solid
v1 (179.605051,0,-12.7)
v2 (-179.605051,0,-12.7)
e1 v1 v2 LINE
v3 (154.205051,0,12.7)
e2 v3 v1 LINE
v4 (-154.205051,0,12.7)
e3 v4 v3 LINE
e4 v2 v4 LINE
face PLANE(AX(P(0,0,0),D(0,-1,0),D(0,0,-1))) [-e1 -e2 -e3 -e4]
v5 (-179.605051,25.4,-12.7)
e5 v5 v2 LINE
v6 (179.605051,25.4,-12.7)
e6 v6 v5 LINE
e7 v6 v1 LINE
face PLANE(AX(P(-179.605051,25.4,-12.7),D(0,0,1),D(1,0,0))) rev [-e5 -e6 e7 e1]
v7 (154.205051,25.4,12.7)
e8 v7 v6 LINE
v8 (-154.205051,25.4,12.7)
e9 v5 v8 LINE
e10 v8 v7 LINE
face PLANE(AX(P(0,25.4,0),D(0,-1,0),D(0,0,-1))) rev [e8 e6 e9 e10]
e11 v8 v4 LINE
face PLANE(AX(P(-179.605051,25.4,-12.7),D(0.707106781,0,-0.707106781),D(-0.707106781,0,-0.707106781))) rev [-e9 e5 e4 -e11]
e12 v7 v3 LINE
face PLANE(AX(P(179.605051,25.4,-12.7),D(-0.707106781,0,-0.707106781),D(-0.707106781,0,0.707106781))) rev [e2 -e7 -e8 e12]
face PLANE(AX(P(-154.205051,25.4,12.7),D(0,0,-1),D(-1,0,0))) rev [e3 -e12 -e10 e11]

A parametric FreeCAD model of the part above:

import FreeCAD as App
import Part
import Sketcher
from FreeCAD import Vector
Q = App.Units.Quantity

doc = App.newDocument("Part")
body = doc.addObject("PartDesign::Body", "Body")

sketch1 = body.newObject("Sketcher::SketchObject", "Sketch")
sketch1.AttachmentSupport = (doc.getObject("XZ_Plane"), [""])
sketch1.MapMode = "FlatFace"
sketch1.addGeometry(Part.LineSegment(Vector(154, 13, 0), Vector(180, -13, 0)), False)
sketch1.addGeometry(Part.LineSegment(Vector(180, -13, 0), Vector(-180, -13, 0)), False)
sketch1.addGeometry(Part.LineSegment(Vector(-180, -13, 0), Vector(-154, 13, 0)), False)
sketch1.addGeometry(Part.LineSegment(Vector(-154, 13, 0), Vector(154, 13, 0)), False)
sketch1.addConstraint(Sketcher.Constraint("Coincident", 0, 2, 1, 1))
sketch1.addConstraint(Sketcher.Constraint("Coincident", 1, 2, 2, 1))
sketch1.addConstraint(Sketcher.Constraint("Coincident", 2, 2, 3, 1))
sketch1.addConstraint(Sketcher.Constraint("Coincident", 3, 2, 0, 1))
sketch1.addConstraint(Sketcher.Constraint("Horizontal", 1))
sketch1.addConstraint(Sketcher.Constraint("Horizontal", 3))
sketch1.addConstraint(Sketcher.Constraint("Perpendicular", 0, 2))
sketch1.addConstraint(Sketcher.Constraint("Equal", 0, 2))
sketch1.addConstraint(Sketcher.Constraint("DistanceX", 1, 2, 2, 2, Q("1 in")))
sketch1.addConstraint(Sketcher.Constraint("DistanceY", 0, 2, -1, 1, Q("0.5 in")))
sketch1.addConstraint(Sketcher.Constraint("DistanceX", 1, 2, 1, 1, 359.210102))
sketch1.addConstraint(Sketcher.Constraint("DistanceX", -1, 1, 0, 2, 179.605051))
pad1 = body.newObject("PartDesign::Pad", "Pad")
pad1.Profile = sketch1
pad1.Length = Q("1 in")
pad1.Reversed = True

doc.recompute()
